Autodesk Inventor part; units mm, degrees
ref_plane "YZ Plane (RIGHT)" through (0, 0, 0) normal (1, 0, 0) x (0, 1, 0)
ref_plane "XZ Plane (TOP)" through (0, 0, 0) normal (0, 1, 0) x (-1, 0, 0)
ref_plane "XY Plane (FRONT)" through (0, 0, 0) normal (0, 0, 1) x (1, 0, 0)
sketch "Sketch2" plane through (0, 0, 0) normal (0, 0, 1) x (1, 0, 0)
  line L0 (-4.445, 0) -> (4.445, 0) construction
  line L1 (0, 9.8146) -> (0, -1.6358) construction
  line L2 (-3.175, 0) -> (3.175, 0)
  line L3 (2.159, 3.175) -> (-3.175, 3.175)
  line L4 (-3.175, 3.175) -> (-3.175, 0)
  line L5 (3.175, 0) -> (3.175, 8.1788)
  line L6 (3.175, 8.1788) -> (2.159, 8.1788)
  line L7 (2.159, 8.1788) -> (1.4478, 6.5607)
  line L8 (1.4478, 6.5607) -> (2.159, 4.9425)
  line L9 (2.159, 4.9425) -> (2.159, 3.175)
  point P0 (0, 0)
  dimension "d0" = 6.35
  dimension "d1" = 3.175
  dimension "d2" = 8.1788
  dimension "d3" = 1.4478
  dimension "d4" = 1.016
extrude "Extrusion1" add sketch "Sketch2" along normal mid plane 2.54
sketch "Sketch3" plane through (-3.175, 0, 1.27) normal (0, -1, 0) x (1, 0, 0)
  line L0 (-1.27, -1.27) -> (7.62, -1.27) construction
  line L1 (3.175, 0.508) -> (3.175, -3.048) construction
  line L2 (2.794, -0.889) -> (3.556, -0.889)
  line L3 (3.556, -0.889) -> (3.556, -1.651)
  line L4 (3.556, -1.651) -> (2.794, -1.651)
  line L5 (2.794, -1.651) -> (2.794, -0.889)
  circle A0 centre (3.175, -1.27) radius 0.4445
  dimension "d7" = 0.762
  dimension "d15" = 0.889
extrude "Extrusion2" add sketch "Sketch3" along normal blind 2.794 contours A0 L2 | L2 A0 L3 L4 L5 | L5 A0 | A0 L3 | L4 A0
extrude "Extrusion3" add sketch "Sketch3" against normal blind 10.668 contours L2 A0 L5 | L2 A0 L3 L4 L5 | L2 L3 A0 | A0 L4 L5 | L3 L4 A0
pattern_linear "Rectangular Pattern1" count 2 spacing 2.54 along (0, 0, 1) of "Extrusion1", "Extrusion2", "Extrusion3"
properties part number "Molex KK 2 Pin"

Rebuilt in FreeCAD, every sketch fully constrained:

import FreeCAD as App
import Part
import Sketcher

V = App.Vector
Q = App.Units.Quantity

doc = App.newDocument("Part")
params = doc.addObject("Spreadsheet::Sheet", "Params")
for row, (alias, value) in enumerate([
    ("sketch1_width", "0.25 in"),
    ("sketch1_width2", "0.04 in"),
    ("sketch1_height", "0.125 in"),
    ("sketch1_height2", "0.322 in"),
    ("pad1_length", "0.1 in"),
    ("sketch2_diameter", "0.035 in"),
    ("pad2_length", "0.11 in"),
    ("sketch3_width", "0.03 in"),
    ("pad3_length", "0.42 in"),
    ("linearpattern_pitch", "0.1 in"),
], start=1):
    params.set(f"A{row}", alias)
    params.set(f"B{row}", "=" + value)
    params.setAlias(f"B{row}", alias)

body = doc.addObject("PartDesign::Body", "Body")

sketch1 = body.newObject("Sketcher::SketchObject", "Sketch")
sketch1.AttachmentSupport = (doc.getObject("XY_Plane"), [""])
sketch1.MapMode = "FlatFace"
sketch1.addGeometry([
    Part.LineSegment(V(-3.175, 3.175, 0), V(-3.175, 0, 0)),
    Part.LineSegment(V(-3.175, 0, 0), V(3.175, 0, 0)),
    Part.LineSegment(V(3.175, 0, 0), V(3.175, 8.1788, 0)),
    Part.LineSegment(V(3.175, 8.1788, 0), V(2.159, 8.1788, 0)),
    Part.LineSegment(V(2.159, 8.1788, 0), V(1.4478, 6.5607, 0)),
    Part.LineSegment(V(1.4478, 6.5607, 0), V(2.159, 4.9425, 0)),
    Part.LineSegment(V(2.159, 4.9425, 0), V(2.159, 3.175, 0)),
    Part.LineSegment(V(2.159, 3.175, 0), V(-3.175, 3.175, 0)),
], False)
sketch1.addConstraint([
    Sketcher.Constraint("Coincident", 0, 2, 1, 1),
    Sketcher.Constraint("Coincident", 1, 2, 2, 1),
    Sketcher.Constraint("Coincident", 2, 2, 3, 1),
    Sketcher.Constraint("Coincident", 3, 2, 4, 1),
    Sketcher.Constraint("Coincident", 4, 2, 5, 1),
    Sketcher.Constraint("Coincident", 5, 2, 6, 1),
    Sketcher.Constraint("Coincident", 6, 2, 7, 1),
    Sketcher.Constraint("Coincident", 7, 2, 0, 1),
    Sketcher.Constraint("Vertical", 0),
    Sketcher.Constraint("Horizontal", 1),
    Sketcher.Constraint("Vertical", 2),
    Sketcher.Constraint("Horizontal", 3),
    Sketcher.Constraint("Vertical", 6),
    Sketcher.Constraint("Horizontal", 7),
    Sketcher.Constraint("Symmetric", 0, 2, 1, 2, -1, 1),
    Sketcher.Constraint("Vertical", 3, 2, 5, 2),
    Sketcher.Constraint("Equal", 4, 5),
    Sketcher.Constraint("DistanceX", 1, 1, 1, 2, Q("0.25 in")),
    Sketcher.Constraint("DistanceX", 3, 2, 3, 1, Q("0.04 in")),
    Sketcher.Constraint("DistanceY", 0, 2, 0, 1, Q("0.125 in")),
    Sketcher.Constraint("DistanceY", 2, 1, 2, 2, Q("0.322 in")),
    Sketcher.Constraint("DistanceX", -1, 1, 4, 2, Q("0.057 in")),
    Sketcher.Constraint("Distance", 5, Q("0.0696 in")),
])
sketch1.setExpression("Constraints[17]", "Params.sketch1_width")
sketch1.setExpression("Constraints[18]", "Params.sketch1_width2")
sketch1.setExpression("Constraints[19]", "Params.sketch1_height")
sketch1.setExpression("Constraints[20]", "Params.sketch1_height2")
pad1 = body.newObject("PartDesign::Pad", "Pad")
pad1.Profile = sketch1
pad1.setExpression("Length", "Params.pad1_length")
pad1.Midplane = True

sketch2 = body.newObject("Sketcher::SketchObject", "Sketch001")
sketch2.AttachmentSupport = (doc.getObject("XZ_Plane"), [""])
sketch2.MapMode = "FlatFace"
sketch2.addGeometry(Part.Circle(V(0, 0, 0), V(0, 0, 1), 0.4445), False)
sketch2.addConstraint([
    Sketcher.Constraint("Coincident", 0, 3, -1, 1),
    Sketcher.Constraint("Diameter", 0, Q("0.035 in")),
])
sketch2.setExpression("Constraints[1]", "Params.sketch2_diameter")
pad2 = body.newObject("PartDesign::Pad", "Pad001")
pad2.Profile = sketch2
pad2.setExpression("Length", "Params.pad2_length")

sketch3 = body.newObject("Sketcher::SketchObject", "Sketch002")
sketch3.AttachmentSupport = (doc.getObject("XZ_Plane"), [""])
sketch3.MapMode = "FlatFace"
sketch3.addGeometry([
    Part.LineSegment(V(-0.381, 0.381, 0), V(-0.381, -0.381, 0)),
    Part.LineSegment(V(-0.381, -0.381, 0), V(0.381, -0.381, 0)),
    Part.LineSegment(V(0.381, -0.381, 0), V(0.381, 0.381, 0)),
    Part.LineSegment(V(0.381, 0.381, 0), V(-0.381, 0.381, 0)),
], False)
sketch3.addConstraint([
    Sketcher.Constraint("Coincident", 0, 2, 1, 1),
    Sketcher.Constraint("Coincident", 1, 2, 2, 1),
    Sketcher.Constraint("Coincident", 2, 2, 3, 1),
    Sketcher.Constraint("Coincident", 3, 2, 0, 1),
    Sketcher.Constraint("Vertical", 0),
    Sketcher.Constraint("Horizontal", 1),
    Sketcher.Constraint("Vertical", 2),
    Sketcher.Constraint("Horizontal", 3),
    Sketcher.Constraint("Symmetric", 0, 2, 2, 2, -1, 1),
    Sketcher.Constraint("Equal", 3, 0),
    Sketcher.Constraint("DistanceX", 1, 1, 1, 2, Q("0.03 in")),
])
sketch3.setExpression("Constraints[10]", "Params.sketch3_width")
pad3 = body.newObject("PartDesign::Pad", "Pad002")
pad3.Profile = sketch3
pad3.setExpression("Length", "Params.pad3_length")
pad3.Reversed = True
doc.recompute()

linearpattern = body.newObject("PartDesign::LinearPattern", "LinearPattern")
linearpattern.Originals = [pad1, pad2, pad3]
linearpattern.Direction = (doc.getObject("Z_Axis"), [""])
linearpattern.Mode = "offset"
linearpattern.setExpression("Offset", "Params.linearpattern_pitch")
linearpattern.Occurrences = 2
body.Tip = linearpattern

doc.recompute()
